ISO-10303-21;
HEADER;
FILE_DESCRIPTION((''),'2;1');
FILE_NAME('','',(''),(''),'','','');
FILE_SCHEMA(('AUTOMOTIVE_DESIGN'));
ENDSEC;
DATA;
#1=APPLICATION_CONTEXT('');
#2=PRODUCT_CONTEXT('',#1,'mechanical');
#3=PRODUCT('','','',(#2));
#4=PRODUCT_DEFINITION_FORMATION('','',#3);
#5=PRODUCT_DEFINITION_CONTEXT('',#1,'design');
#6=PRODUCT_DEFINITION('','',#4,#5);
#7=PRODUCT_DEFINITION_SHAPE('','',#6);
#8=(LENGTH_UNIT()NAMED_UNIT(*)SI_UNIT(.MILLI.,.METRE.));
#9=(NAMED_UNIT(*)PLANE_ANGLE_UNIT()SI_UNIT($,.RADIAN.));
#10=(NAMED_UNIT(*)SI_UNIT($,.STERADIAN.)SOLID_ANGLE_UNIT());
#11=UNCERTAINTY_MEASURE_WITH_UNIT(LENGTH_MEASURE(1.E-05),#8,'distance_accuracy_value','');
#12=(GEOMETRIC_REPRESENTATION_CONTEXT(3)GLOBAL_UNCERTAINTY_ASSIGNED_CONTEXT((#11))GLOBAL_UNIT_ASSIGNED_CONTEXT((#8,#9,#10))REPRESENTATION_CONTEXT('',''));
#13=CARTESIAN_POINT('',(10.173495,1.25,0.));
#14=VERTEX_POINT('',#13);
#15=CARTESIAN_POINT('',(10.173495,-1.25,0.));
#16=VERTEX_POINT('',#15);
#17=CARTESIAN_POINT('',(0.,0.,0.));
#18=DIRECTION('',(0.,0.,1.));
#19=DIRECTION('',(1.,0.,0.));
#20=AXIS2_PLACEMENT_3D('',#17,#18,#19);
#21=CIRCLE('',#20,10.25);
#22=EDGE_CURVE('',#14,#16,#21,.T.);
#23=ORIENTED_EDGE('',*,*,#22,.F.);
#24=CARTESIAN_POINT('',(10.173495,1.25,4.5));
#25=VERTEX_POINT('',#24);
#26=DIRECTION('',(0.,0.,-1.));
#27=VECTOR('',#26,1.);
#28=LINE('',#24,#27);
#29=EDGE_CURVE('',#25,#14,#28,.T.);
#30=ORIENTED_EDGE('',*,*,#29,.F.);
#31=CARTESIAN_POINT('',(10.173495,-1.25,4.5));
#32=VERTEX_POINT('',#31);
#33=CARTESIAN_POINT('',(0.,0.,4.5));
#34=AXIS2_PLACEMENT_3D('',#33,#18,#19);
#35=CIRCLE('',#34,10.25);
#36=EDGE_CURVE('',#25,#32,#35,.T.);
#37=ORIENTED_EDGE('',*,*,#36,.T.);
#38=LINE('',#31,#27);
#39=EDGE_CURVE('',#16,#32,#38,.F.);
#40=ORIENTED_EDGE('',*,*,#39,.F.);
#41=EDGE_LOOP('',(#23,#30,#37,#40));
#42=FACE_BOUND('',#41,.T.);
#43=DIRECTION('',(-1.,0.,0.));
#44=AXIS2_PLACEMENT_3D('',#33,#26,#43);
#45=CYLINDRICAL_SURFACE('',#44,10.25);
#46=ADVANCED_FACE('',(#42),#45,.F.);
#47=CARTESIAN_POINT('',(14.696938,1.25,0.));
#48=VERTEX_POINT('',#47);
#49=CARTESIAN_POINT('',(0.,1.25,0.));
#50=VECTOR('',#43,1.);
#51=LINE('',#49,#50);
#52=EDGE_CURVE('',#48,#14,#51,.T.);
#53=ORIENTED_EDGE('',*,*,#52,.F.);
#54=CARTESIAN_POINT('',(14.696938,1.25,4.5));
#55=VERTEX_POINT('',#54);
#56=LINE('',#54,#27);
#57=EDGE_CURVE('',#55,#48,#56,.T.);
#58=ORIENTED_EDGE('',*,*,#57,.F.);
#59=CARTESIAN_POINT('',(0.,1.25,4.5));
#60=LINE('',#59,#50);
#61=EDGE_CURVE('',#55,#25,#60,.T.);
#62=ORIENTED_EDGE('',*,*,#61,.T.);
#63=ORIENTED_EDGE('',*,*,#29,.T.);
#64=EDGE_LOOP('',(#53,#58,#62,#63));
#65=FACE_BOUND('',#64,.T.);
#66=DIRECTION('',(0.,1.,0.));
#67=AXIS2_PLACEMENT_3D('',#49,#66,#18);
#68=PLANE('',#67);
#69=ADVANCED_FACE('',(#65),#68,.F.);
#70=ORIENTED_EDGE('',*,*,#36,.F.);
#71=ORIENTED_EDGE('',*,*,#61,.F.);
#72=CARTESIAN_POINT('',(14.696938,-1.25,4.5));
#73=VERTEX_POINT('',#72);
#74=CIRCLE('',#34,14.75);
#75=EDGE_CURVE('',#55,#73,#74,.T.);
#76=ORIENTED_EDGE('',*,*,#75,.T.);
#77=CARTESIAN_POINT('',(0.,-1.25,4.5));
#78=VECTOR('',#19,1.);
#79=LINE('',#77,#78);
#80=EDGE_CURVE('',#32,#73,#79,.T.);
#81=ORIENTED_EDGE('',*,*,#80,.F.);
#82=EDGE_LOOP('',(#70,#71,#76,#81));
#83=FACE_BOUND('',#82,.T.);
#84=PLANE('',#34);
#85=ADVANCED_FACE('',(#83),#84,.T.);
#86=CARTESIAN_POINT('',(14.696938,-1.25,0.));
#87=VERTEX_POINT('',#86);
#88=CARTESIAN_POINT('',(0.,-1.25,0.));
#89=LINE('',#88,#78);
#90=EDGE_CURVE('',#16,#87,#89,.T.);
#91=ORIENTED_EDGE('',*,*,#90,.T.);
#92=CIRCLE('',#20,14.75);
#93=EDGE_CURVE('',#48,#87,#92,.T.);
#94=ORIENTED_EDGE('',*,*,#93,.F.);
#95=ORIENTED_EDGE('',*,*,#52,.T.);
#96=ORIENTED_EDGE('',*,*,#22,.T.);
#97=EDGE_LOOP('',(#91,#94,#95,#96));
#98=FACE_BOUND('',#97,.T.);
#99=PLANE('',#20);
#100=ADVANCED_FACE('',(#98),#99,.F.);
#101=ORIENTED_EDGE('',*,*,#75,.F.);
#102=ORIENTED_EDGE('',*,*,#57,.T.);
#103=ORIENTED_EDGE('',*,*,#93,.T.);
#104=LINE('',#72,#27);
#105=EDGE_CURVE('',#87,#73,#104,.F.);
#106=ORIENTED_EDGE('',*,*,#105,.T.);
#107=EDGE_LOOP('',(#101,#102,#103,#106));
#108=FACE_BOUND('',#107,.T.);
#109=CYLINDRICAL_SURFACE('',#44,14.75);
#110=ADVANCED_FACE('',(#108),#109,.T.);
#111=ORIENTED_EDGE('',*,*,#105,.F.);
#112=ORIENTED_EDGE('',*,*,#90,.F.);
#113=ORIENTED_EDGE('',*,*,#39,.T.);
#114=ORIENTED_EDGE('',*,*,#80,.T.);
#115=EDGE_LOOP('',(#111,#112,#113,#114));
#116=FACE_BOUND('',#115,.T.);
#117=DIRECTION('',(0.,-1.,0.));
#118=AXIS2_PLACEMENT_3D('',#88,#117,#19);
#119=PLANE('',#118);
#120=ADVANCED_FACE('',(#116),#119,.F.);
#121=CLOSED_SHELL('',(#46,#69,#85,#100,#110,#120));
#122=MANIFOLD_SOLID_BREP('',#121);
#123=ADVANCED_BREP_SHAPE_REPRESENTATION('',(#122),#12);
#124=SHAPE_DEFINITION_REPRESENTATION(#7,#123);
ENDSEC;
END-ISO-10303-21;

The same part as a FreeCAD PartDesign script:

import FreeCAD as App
import Part
import Sketcher

V = App.Vector
Q = App.Units.Quantity


def add_polygon(sketch, points):
    """Adds a closed chain of lines whose ends are joined by coincident constraints."""
    first, n = sketch.GeometryCount, len(points)
    for a, b in zip(points, points[1:] + points[:1]):
        sketch.addGeometry(Part.LineSegment(App.Vector(*a, 0), App.Vector(*b, 0)), False)
    for i in range(n):
        sketch.addConstraint(Sketcher.Constraint("Coincident", first + i, 2, first + (i + 1) % n, 1))

doc = App.newDocument("Part")
body = doc.addObject("PartDesign::Body", "Body")

sketch1 = body.newObject("Sketcher::SketchObject", "Sketch")
sketch1.AttachmentSupport = (doc.getObject("XY_Plane"), [""])
sketch1.MapMode = "FlatFace"
sketch1.addGeometry([
    Part.Circle(V(0, 0, 0), V(0, 0, 1), 15),
    Part.Circle(V(0, 0, 0), V(0, 0, 1), 10),
], False)
sketch1.addConstraint([
    Sketcher.Constraint("Coincident", 0, 3, -1, 1),
    Sketcher.Constraint("Coincident", 1, 3, -1, 1),
    Sketcher.Constraint("Diameter", 0, Q("29.5 mm")),
    Sketcher.Constraint("Diameter", 1, Q("20.5 mm")),
])
pad1 = body.newObject("PartDesign::Pad", "Pad")
pad1.Profile = sketch1
pad1.Length = 4.5

sketch2 = body.newObject("Sketcher::SketchObject", "Sketch001")
sketch2.AttachmentSupport = (doc.getObject("XY_Plane"), [""])
sketch2.MapMode = "FlatFace"
sketch2.AttachmentOffset = App.Placement(V(0, 0, 4.5), App.Rotation())
add_polygon(sketch2, [(0, 1.2), (0, -1.2), (14.8, -1.2), (14.8, 1.2)])
sketch2.addConstraint([
    Sketcher.Constraint("Vertical", 0),
    Sketcher.Constraint("Horizontal", 1),
    Sketcher.Constraint("Vertical", 2),
    Sketcher.Constraint("Horizontal", 3),
    Sketcher.Constraint("Symmetric", 0, 2, 3, 2, -1, 1),
    Sketcher.Constraint("DistanceY", 0, 2, 0, 1, Q("2.5 mm")),
    Sketcher.Constraint("DistanceX", 1, 1, 1, 2, Q("14.75 mm")),
])
pocket1 = body.newObject("PartDesign::Pocket", "Pocket")
pocket1.Profile = sketch2
pocket1.Type = "ThroughAll"

doc.recompute()
